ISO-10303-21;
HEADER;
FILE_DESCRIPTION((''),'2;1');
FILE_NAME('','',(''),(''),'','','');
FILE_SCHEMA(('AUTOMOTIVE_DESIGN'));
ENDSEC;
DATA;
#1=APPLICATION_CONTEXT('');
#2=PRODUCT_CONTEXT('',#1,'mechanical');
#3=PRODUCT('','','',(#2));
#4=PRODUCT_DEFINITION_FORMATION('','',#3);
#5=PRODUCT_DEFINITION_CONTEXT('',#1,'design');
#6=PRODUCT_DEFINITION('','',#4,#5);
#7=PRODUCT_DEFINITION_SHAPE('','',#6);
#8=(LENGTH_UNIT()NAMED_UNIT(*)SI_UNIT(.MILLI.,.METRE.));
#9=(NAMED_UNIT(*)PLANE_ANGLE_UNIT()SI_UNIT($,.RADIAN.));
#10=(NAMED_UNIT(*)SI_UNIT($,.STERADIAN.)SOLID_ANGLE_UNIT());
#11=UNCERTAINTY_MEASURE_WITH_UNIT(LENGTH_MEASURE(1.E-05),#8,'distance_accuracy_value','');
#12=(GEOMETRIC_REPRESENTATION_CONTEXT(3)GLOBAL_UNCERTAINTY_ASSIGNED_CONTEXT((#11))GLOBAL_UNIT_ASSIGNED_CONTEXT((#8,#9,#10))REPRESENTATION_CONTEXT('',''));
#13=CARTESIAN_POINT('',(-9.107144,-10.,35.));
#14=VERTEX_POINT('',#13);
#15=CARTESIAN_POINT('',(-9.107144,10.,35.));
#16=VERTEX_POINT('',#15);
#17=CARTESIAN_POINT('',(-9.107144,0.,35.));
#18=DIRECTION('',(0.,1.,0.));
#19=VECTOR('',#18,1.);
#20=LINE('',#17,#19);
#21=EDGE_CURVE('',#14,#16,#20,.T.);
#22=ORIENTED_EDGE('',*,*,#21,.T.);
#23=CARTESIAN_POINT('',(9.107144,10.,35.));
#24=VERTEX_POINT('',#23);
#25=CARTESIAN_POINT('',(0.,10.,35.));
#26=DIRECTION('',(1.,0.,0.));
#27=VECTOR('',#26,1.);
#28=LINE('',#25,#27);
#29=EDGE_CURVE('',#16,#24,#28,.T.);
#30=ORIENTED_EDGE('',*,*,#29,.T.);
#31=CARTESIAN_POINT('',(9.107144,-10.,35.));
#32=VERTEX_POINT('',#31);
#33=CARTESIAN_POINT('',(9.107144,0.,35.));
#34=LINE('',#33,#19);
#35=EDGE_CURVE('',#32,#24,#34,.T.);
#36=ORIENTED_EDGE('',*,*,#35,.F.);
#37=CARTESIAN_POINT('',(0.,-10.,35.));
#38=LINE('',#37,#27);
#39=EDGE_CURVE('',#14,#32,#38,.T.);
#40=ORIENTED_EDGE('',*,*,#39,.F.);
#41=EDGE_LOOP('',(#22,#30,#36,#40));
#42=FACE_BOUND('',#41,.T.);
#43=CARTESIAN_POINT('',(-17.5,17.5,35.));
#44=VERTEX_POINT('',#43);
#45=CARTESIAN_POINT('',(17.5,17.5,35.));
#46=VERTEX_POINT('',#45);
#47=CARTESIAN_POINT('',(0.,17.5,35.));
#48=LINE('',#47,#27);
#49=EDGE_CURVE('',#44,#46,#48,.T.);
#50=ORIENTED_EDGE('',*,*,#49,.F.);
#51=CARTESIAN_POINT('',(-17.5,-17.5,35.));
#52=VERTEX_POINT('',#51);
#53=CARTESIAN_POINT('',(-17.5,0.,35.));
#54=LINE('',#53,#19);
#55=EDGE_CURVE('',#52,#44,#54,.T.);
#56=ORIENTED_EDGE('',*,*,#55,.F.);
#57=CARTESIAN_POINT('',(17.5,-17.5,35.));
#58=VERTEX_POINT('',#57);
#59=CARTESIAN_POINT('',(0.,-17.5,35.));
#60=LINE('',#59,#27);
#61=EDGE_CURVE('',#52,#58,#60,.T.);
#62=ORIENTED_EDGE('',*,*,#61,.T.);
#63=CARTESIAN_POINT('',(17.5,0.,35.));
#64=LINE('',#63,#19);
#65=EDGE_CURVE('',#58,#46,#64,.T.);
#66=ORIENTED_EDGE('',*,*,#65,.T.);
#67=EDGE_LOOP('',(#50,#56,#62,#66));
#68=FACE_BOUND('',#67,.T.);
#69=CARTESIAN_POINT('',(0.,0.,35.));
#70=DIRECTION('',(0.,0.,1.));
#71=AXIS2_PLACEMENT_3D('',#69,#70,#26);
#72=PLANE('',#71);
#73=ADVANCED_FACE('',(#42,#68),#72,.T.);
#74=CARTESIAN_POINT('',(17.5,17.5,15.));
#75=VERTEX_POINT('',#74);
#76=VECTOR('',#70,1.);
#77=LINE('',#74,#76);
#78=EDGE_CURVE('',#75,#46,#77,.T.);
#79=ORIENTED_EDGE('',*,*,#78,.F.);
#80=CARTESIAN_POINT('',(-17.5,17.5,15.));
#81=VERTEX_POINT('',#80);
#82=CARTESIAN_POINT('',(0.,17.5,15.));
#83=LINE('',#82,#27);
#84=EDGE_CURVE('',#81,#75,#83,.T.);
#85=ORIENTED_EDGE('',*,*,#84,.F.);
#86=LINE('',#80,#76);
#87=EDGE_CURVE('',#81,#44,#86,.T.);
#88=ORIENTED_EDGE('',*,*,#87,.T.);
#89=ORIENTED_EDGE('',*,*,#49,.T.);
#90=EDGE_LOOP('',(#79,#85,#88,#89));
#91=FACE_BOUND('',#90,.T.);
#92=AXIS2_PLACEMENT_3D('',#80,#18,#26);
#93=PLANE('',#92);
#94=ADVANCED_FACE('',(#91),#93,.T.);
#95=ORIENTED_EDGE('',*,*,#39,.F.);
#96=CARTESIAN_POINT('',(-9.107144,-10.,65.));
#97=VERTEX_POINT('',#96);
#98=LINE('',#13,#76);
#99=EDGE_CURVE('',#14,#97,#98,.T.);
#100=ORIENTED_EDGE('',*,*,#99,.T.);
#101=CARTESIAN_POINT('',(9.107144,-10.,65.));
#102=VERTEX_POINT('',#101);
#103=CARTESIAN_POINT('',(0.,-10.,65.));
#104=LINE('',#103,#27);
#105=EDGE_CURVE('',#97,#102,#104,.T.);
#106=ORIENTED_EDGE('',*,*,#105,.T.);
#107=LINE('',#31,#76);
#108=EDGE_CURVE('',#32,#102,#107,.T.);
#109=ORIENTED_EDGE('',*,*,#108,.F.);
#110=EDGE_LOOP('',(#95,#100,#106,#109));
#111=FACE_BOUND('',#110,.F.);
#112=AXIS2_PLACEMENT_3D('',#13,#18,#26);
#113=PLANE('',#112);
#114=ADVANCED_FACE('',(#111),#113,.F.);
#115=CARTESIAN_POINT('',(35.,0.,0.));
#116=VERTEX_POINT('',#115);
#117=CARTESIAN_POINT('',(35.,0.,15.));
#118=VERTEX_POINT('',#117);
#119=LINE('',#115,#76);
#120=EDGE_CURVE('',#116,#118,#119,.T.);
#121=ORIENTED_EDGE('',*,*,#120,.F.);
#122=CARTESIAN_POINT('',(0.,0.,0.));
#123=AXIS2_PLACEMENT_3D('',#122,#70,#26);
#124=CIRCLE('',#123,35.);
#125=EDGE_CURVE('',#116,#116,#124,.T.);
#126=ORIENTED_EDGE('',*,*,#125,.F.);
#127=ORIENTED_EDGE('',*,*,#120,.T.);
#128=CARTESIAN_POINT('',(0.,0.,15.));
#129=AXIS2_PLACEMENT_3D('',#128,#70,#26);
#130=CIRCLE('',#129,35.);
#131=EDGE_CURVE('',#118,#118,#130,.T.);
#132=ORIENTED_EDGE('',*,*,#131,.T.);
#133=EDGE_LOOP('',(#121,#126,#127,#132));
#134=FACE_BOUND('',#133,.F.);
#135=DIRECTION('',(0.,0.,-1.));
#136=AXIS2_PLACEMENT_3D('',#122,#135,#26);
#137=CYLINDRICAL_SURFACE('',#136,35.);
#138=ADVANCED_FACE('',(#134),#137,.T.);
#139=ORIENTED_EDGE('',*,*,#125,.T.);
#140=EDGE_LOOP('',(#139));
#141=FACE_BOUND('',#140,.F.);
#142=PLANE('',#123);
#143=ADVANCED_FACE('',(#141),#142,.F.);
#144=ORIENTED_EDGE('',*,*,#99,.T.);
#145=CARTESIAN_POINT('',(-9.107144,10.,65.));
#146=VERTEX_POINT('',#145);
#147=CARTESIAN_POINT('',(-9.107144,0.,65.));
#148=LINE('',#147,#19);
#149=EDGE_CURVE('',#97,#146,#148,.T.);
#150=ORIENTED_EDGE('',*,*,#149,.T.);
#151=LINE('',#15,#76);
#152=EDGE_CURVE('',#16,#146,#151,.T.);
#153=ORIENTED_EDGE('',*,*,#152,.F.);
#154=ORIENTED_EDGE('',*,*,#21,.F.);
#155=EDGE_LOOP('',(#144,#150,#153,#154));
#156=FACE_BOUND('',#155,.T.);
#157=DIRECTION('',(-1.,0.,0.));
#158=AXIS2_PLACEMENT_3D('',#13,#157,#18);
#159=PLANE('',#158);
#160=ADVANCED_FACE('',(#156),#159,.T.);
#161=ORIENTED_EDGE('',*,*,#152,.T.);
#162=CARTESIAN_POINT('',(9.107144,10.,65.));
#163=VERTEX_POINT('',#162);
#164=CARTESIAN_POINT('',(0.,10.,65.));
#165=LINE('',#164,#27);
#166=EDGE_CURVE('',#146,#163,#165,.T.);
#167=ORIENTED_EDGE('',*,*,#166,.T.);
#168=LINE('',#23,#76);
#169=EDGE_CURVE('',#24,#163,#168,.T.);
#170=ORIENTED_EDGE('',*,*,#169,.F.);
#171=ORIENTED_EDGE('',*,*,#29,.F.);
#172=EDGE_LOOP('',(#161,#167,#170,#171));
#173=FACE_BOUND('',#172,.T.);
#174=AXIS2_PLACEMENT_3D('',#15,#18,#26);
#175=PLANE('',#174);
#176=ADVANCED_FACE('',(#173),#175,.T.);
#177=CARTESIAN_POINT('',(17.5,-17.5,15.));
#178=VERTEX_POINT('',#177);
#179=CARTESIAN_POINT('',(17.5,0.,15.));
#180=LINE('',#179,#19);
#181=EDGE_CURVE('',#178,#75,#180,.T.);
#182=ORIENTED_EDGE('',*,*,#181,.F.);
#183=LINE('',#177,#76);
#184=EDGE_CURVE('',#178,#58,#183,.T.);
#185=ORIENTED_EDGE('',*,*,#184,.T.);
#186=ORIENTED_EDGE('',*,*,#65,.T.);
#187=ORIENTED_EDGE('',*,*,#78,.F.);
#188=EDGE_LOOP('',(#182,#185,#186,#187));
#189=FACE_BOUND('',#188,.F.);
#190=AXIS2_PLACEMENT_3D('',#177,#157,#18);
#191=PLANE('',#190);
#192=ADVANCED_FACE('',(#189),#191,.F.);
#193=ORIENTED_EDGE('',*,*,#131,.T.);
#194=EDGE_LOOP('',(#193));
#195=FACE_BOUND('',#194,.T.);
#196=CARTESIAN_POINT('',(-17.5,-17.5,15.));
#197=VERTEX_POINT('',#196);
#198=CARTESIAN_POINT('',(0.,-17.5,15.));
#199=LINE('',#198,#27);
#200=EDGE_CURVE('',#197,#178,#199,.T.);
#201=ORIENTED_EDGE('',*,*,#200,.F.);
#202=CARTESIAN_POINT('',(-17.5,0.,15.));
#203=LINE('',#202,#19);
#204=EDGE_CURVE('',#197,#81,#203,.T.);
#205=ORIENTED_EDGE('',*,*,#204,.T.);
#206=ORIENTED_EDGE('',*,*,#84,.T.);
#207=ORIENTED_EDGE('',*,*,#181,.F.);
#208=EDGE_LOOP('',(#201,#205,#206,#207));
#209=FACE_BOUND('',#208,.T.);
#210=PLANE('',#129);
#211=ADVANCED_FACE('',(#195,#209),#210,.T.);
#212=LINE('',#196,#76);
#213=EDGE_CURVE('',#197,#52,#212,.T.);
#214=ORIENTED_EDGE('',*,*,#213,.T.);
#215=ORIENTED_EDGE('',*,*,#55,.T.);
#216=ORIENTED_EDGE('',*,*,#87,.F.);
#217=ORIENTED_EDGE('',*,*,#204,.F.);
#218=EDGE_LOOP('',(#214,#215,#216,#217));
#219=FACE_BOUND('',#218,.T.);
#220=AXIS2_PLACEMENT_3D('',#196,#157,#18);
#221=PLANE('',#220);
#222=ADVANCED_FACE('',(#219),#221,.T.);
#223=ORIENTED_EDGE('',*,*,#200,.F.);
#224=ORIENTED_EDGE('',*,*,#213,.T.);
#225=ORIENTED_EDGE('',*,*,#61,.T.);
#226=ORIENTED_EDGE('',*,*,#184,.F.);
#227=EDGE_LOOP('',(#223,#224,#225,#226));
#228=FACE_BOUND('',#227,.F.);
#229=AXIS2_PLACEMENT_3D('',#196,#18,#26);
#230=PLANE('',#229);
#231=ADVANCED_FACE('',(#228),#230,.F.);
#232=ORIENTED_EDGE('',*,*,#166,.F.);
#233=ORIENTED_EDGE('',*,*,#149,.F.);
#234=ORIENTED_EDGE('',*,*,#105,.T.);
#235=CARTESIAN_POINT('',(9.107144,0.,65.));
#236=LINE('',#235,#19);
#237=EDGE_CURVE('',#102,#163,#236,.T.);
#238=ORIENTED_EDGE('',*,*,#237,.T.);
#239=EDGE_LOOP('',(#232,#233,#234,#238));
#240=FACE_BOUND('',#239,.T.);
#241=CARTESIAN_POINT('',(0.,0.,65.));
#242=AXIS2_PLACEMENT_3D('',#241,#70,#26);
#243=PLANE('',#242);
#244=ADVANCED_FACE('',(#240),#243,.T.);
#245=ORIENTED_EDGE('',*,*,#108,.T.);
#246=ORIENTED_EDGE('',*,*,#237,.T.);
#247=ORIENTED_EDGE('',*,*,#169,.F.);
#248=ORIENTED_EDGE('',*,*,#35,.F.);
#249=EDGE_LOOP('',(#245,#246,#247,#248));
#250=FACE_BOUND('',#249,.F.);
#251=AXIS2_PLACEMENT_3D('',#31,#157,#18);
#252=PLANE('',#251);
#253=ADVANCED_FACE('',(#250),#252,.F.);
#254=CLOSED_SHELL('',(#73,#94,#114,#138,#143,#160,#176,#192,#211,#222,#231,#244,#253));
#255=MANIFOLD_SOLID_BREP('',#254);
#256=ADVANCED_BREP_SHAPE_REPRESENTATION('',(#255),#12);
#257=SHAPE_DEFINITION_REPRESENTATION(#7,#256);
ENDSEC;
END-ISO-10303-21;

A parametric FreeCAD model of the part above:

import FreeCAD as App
import Part
import Sketcher
from FreeCAD import Vector


def add_polygon(sketch, points):
    """Adds a closed chain of lines whose ends are joined by coincident constraints."""
    first, n = sketch.GeometryCount, len(points)
    for a, b in zip(points, points[1:] + points[:1]):
        sketch.addGeometry(Part.LineSegment(App.Vector(*a, 0), App.Vector(*b, 0)), False)
    for i in range(n):
        sketch.addConstraint(Sketcher.Constraint("Coincident", first + i, 2, first + (i + 1) % n, 1))

doc = App.newDocument("Part")
body = doc.addObject("PartDesign::Body", "Body")

# Sketch on XY plane
sketch1 = doc.addObject("Sketcher::SketchObject", "Sketch")
body.addObject(sketch1)
sketch1.AttachmentSupport = (doc.XY_Plane, [""])
sketch1.MapMode = "FlatFace"
sketch1.addGeometry(Part.Circle(Vector(0, 0, 0), Vector(0, 0, 1), 35), False)
sketch1.addConstraint(Sketcher.Constraint("Coincident", 0, 3, -1, 1))
sketch1.addConstraint(Sketcher.Constraint("Diameter", 0, 70.0))
pad1 = doc.addObject("PartDesign::Pad", "Pad")
body.addObject(pad1)
pad1.Profile = sketch1
pad1.Length = 15

# Sketch on XY plane
sketch2 = doc.addObject("Sketcher::SketchObject", "Sketch001")
body.addObject(sketch2)
sketch2.AttachmentSupport = (doc.XY_Plane, [""])
sketch2.MapMode = "FlatFace"
sketch2.AttachmentOffset = App.Placement(Vector(0, 0, 15), App.Rotation())
add_polygon(sketch2, [(-17.5, 17.5), (-17.5, -17.5), (17.5, -17.5), (17.5, 17.5)])  # lines 0-3
sketch2.addConstraint(Sketcher.Constraint("Vertical", 0))
sketch2.addConstraint(Sketcher.Constraint("Horizontal", 1))
sketch2.addConstraint(Sketcher.Constraint("Vertical", 2))
sketch2.addConstraint(Sketcher.Constraint("Horizontal", 3))
sketch2.addConstraint(Sketcher.Constraint("Symmetric", 0, 2, 2, 2, -1, 1))
sketch2.addConstraint(Sketcher.Constraint("Equal", 3, 0))
sketch2.addConstraint(Sketcher.Constraint("DistanceX", 1, 1, 1, 2, 35.0))
pad2 = doc.addObject("PartDesign::Pad", "Pad001")
body.addObject(pad2)
pad2.Profile = sketch2
pad2.Length = 20

# Sketch on XY plane
sketch3 = doc.addObject("Sketcher::SketchObject", "Sketch002")
body.addObject(sketch3)
sketch3.AttachmentSupport = (doc.XY_Plane, [""])
sketch3.MapMode = "FlatFace"
sketch3.AttachmentOffset = App.Placement(Vector(0, 0, 35), App.Rotation())
add_polygon(sketch3, [(-9.107144, 10), (-9.107144, -10), (9.107144, -10), (9.107144, 10)])  # lines 0-3
sketch3.addConstraint(Sketcher.Constraint("Vertical", 0))
sketch3.addConstraint(Sketcher.Constraint("Horizontal", 1))
sketch3.addConstraint(Sketcher.Constraint("Vertical", 2))
sketch3.addConstraint(Sketcher.Constraint("Horizontal", 3))
sketch3.addConstraint(Sketcher.Constraint("Symmetric", 0, 2, 2, 2, -1, 1))
sketch3.addConstraint(Sketcher.Constraint("DistanceY", 0, 2, 0, 1, 20.0))
sketch3.addConstraint(Sketcher.Constraint("DistanceX", 1, 1, 1, 2, 18.214288))
pad3 = doc.addObject("PartDesign::Pad", "Pad002")
body.addObject(pad3)
pad3.Profile = sketch3
pad3.Length = 30

doc.recompute()
